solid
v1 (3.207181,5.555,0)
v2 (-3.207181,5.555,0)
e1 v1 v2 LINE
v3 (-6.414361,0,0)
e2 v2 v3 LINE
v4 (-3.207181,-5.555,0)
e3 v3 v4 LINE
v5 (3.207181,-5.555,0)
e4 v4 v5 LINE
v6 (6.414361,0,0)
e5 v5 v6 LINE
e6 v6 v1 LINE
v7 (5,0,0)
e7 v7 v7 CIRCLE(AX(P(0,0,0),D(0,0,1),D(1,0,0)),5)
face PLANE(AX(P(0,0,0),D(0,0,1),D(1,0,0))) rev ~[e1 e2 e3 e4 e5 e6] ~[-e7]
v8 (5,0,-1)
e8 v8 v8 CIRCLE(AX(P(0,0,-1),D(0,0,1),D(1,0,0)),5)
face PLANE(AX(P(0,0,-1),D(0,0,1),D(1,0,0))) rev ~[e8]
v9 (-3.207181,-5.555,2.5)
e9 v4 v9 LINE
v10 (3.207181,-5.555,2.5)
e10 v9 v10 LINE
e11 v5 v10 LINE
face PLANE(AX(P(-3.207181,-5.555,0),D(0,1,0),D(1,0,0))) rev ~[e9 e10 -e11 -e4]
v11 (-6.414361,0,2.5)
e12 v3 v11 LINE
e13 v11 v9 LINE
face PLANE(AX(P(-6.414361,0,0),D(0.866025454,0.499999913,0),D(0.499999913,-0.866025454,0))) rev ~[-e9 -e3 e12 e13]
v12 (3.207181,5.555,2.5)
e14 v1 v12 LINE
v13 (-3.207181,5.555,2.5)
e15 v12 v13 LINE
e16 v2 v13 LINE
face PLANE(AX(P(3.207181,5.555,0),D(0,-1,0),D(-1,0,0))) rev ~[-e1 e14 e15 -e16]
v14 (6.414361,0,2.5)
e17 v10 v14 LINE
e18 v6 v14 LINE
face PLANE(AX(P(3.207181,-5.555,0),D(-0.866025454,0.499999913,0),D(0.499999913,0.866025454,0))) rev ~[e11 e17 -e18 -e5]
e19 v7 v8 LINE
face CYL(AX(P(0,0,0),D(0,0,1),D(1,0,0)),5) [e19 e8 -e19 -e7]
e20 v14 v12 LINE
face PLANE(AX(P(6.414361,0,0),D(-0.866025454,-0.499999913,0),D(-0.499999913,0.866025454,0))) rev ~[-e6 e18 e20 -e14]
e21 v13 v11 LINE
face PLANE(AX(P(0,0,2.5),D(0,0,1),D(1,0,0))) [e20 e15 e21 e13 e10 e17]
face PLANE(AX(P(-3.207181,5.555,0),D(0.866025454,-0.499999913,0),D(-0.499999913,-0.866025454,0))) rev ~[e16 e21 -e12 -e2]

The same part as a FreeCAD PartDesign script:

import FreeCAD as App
import Part
import Sketcher
Q = App.Units.Quantity

doc = App.newDocument("Part")
body = doc.addObject("PartDesign::Body", "Body")

# Sketch on XY plane
sketch1 = doc.addObject("Sketcher::SketchObject", "Sketch")
body.addObject(sketch1)
sketch1.AttachmentSupport = (doc.XY_Plane, [""])
sketch1.MapMode = "FlatFace"
sketch1.addGeometry(Part.LineSegment(App.Vector(-6, 0, 0), App.Vector(-3, -6, 0)), False)
sketch1.addGeometry(Part.LineSegment(App.Vector(-3, -6, 0), App.Vector(3, -6, 0)), False)
sketch1.addGeometry(Part.LineSegment(App.Vector(3, -6, 0), App.Vector(6, 0, 0)), False)
sketch1.addGeometry(Part.LineSegment(App.Vector(6, 0, 0), App.Vector(3, 6, 0)), False)
sketch1.addGeometry(Part.LineSegment(App.Vector(3, 6, 0), App.Vector(-3, 6, 0)), False)
sketch1.addGeometry(Part.LineSegment(App.Vector(-3, 6, 0), App.Vector(-6, 0, 0)), False)
sketch1.addConstraint(Sketcher.Constraint("Coincident", 0, 2, 1, 1))
sketch1.addConstraint(Sketcher.Constraint("Coincident", 1, 2, 2, 1))
sketch1.addConstraint(Sketcher.Constraint("Coincident", 2, 2, 3, 1))
sketch1.addConstraint(Sketcher.Constraint("Coincident", 3, 2, 4, 1))
sketch1.addConstraint(Sketcher.Constraint("Coincident", 4, 2, 5, 1))
sketch1.addConstraint(Sketcher.Constraint("Coincident", 5, 2, 0, 1))
sketch1.addConstraint(Sketcher.Constraint("Horizontal", 1))
sketch1.addConstraint(Sketcher.Constraint("Horizontal", 4))
sketch1.addConstraint(Sketcher.Constraint("Symmetric", 0, 2, 3, 2, -1, 1))
sketch1.addConstraint(Sketcher.Constraint("Symmetric", 2, 2, 5, 2, -1, 1))
sketch1.addConstraint(Sketcher.Constraint("PointOnObject", 2, 2, -1))
sketch1.addConstraint(Sketcher.Constraint("Parallel", 2, 5))
sketch1.addConstraint(Sketcher.Constraint("Vertical", 1, 2, 3, 2))
sketch1.addConstraint(Sketcher.Constraint("Angle", 0, Q("-60.000006 deg")))
sketch1.addConstraint(Sketcher.Constraint("DistanceY", 1, 2, 3, 2, 11.11))
sketch1.addConstraint(Sketcher.Constraint("DistanceX", 1, 1, 1, 2, 6.414362))
pad1 = doc.addObject("PartDesign::Pad", "Pad")
body.addObject(pad1)
pad1.Profile = sketch1
pad1.Length = 2.5

# Sketch on XY plane
sketch2 = doc.addObject("Sketcher::SketchObject", "Sketch001")
body.addObject(sketch2)
sketch2.AttachmentSupport = (doc.XY_Plane, [""])
sketch2.MapMode = "FlatFace"
sketch2.addGeometry(Part.Circle(App.Vector(0, 0, 0), App.Vector(0, 0, 1), 5), False)
sketch2.addConstraint(Sketcher.Constraint("Coincident", 0, 3, -1, 1))
sketch2.addConstraint(Sketcher.Constraint("Diameter", 0, 10.0))
pad2 = doc.addObject("PartDesign::Pad", "Pad001")
body.addObject(pad2)
pad2.Profile = sketch2
pad2.Length = 1
pad2.Reversed = True

doc.recompute()
